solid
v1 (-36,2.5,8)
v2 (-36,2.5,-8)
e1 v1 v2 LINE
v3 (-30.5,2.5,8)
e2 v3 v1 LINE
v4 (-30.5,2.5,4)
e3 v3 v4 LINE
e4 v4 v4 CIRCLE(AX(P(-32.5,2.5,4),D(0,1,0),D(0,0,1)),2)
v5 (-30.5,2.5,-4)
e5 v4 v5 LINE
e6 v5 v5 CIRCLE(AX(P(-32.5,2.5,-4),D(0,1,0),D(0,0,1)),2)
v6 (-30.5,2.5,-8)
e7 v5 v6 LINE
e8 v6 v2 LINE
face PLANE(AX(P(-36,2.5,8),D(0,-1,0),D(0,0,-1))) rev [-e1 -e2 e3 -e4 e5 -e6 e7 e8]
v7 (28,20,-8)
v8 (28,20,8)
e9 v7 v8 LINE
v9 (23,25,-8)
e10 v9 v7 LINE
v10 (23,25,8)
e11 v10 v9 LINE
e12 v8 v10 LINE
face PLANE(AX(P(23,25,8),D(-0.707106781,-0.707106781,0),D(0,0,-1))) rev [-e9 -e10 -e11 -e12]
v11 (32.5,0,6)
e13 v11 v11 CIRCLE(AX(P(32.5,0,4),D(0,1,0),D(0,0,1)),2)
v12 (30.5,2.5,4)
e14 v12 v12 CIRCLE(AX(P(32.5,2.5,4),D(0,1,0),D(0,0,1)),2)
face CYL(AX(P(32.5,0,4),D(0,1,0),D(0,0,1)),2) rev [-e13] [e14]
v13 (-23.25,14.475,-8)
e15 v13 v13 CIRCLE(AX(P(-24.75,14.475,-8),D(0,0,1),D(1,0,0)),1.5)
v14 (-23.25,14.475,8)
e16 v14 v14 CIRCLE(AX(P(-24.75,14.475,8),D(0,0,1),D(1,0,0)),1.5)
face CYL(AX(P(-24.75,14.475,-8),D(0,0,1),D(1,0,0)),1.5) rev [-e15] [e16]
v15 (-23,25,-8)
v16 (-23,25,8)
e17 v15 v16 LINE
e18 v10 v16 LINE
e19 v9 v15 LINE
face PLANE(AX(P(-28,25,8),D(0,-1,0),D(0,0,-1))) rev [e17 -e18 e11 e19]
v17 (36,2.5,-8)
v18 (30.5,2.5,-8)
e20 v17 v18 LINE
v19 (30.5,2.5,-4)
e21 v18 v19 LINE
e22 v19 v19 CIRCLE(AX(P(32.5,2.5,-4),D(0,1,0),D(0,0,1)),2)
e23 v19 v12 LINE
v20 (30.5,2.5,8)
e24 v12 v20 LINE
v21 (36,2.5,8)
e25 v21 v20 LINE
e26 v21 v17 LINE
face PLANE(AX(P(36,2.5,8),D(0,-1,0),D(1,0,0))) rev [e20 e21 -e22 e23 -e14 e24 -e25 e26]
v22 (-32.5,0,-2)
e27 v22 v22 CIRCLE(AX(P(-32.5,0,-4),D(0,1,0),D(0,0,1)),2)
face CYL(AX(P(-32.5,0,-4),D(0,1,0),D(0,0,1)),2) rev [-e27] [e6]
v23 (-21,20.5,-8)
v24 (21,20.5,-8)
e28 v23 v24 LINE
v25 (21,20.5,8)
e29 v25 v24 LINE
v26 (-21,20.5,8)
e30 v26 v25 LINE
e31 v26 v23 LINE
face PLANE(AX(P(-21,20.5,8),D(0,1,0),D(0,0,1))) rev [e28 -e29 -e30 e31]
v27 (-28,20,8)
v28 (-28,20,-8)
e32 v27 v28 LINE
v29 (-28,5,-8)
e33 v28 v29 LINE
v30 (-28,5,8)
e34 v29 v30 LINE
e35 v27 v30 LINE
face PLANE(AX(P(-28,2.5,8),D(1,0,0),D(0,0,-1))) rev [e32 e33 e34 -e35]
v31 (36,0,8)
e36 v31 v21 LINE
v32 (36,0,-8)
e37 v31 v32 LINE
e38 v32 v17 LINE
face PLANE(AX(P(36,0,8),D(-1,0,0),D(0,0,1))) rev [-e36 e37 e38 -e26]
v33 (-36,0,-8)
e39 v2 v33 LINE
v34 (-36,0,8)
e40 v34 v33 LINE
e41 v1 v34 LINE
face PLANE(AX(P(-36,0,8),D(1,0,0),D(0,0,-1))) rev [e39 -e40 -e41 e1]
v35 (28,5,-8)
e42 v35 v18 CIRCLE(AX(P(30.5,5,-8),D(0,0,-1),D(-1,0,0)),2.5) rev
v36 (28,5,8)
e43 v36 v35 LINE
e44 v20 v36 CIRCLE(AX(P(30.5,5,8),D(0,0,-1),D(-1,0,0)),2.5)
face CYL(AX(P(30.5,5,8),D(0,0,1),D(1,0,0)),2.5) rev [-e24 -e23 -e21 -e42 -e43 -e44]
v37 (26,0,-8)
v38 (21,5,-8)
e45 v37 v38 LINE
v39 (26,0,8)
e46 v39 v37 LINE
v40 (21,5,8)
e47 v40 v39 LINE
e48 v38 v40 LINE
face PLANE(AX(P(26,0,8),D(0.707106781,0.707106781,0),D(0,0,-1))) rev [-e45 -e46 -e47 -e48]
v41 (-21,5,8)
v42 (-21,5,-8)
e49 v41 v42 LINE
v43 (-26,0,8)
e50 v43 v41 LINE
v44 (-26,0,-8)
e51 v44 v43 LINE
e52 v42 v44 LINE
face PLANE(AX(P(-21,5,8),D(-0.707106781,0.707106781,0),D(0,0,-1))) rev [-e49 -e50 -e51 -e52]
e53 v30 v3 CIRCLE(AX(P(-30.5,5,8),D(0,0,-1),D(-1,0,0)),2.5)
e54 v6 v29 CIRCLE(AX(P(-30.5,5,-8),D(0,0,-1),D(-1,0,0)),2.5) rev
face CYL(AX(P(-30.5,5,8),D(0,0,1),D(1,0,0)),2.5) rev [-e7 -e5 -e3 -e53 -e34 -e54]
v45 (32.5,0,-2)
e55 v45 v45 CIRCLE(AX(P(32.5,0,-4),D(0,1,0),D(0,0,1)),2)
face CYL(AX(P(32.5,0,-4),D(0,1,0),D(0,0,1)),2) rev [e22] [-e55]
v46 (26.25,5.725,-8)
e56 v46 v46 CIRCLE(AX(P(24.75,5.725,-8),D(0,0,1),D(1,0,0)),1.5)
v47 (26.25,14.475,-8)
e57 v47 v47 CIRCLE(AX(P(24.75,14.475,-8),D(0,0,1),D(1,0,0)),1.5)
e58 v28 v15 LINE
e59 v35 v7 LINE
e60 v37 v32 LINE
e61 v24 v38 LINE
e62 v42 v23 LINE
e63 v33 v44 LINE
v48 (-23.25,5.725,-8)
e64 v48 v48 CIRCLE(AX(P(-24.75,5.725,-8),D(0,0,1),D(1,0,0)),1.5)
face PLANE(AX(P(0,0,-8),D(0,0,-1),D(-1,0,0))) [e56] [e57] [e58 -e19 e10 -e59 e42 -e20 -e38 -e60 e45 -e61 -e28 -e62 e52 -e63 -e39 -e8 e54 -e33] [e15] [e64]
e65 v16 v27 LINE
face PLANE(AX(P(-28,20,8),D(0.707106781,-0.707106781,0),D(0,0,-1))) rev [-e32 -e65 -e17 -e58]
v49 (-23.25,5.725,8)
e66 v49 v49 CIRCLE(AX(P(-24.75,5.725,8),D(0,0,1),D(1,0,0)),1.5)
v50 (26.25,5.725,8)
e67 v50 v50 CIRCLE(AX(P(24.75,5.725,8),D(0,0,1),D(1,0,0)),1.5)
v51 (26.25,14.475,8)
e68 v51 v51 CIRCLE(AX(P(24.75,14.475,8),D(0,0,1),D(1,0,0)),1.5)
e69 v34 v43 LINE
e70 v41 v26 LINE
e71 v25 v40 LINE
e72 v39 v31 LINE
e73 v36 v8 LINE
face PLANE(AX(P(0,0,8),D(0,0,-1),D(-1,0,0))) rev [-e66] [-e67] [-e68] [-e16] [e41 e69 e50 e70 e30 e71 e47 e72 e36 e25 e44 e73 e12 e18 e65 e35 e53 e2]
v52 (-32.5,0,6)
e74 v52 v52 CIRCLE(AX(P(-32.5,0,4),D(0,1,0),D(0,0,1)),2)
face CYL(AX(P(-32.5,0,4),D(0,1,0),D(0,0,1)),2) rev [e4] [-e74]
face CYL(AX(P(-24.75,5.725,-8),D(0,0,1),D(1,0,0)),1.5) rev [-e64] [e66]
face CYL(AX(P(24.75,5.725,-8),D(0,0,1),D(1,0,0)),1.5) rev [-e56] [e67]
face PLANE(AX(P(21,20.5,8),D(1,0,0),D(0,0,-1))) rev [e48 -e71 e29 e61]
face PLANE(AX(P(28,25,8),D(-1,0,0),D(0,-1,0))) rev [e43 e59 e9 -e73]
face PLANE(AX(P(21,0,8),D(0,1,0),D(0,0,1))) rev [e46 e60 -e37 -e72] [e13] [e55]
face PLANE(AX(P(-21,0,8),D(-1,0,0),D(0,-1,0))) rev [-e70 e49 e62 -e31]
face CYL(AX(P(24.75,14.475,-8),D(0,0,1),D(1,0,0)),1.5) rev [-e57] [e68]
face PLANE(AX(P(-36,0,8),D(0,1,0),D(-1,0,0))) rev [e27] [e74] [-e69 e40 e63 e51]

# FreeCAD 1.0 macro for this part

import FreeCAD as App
import Part
import Sketcher


def edges_at(feature, points):
    """Names of the edges that pass closest to the given points."""
    edges = feature.Shape.Edges
    near = lambda p: min(range(len(edges)), key=lambda i: edges[i].distToShape(Part.Vertex(*p))[0])
    return sorted({f"Edge{near(p) + 1}" for p in points})

doc = App.newDocument("Part")
body = doc.addObject("PartDesign::Body", "Body")

sketch1 = doc.addObject("Sketcher::SketchObject", "Sketch")
body.addObject(sketch1)
sketch1.AttachmentSupport = (doc.XY_Plane, [""])
sketch1.MapMode = "FlatFace"
sketch1.addGeometry([
    Part.LineSegment(App.Vector(-36, 0, 0), App.Vector(-21, 0, 0)),
    Part.LineSegment(App.Vector(-21, 0, 0), App.Vector(-21, 20.5, 0)),
    Part.LineSegment(App.Vector(-21, 20.5, 0), App.Vector(21, 20.5, 0)),
    Part.LineSegment(App.Vector(21, 20.5, 0), App.Vector(21, 0, 0)),
    Part.LineSegment(App.Vector(21, 0, 0), App.Vector(36, 0, 0)),
    Part.LineSegment(App.Vector(36, 0, 0), App.Vector(36, 2.5, 0)),
    Part.LineSegment(App.Vector(36, 2.5, 0), App.Vector(28, 2.5, 0)),
    Part.LineSegment(App.Vector(28, 2.5, 0), App.Vector(28, 25, 0)),
    Part.LineSegment(App.Vector(28, 25, 0), App.Vector(-28, 25, 0)),
    Part.LineSegment(App.Vector(-28, 25, 0), App.Vector(-28, 2.5, 0)),
    Part.LineSegment(App.Vector(-28, 2.5, 0), App.Vector(-36, 2.5, 0)),
    Part.LineSegment(App.Vector(-36, 2.5, 0), App.Vector(-36, 0, 0)),
], False)
sketch1.addConstraint([
    Sketcher.Constraint("Coincident", 0, 2, 1, 1),
    Sketcher.Constraint("Coincident", 1, 2, 2, 1),
    Sketcher.Constraint("Coincident", 2, 2, 3, 1),
    Sketcher.Constraint("Coincident", 3, 2, 4, 1),
    Sketcher.Constraint("Coincident", 4, 2, 5, 1),
    Sketcher.Constraint("Coincident", 5, 2, 6, 1),
    Sketcher.Constraint("Coincident", 6, 2, 7, 1),
    Sketcher.Constraint("Coincident", 7, 2, 8, 1),
    Sketcher.Constraint("Coincident", 8, 2, 9, 1),
    Sketcher.Constraint("Coincident", 9, 2, 10, 1),
    Sketcher.Constraint("Coincident", 10, 2, 11, 1),
    Sketcher.Constraint("Coincident", 11, 2, 0, 1),
    Sketcher.Constraint("Horizontal", 0),
    Sketcher.Constraint("Vertical", 1),
    Sketcher.Constraint("Horizontal", 2),
    Sketcher.Constraint("Vertical", 3),
    Sketcher.Constraint("Horizontal", 4),
    Sketcher.Constraint("Vertical", 5),
    Sketcher.Constraint("Horizontal", 6),
    Sketcher.Constraint("Vertical", 7),
    Sketcher.Constraint("Horizontal", 8),
    Sketcher.Constraint("Vertical", 9),
    Sketcher.Constraint("Horizontal", 10),
    Sketcher.Constraint("Vertical", 11),
    Sketcher.Constraint("Symmetric", 0, 2, 3, 2, -1, 1),
    Sketcher.Constraint("Symmetric", 6, 2, 9, 2, -2),
    Sketcher.Constraint("Symmetric", 4, 2, 11, 2, -2),
    Sketcher.Constraint("DistanceX", 0, 1, 0, 2, 15.0),
    Sketcher.Constraint("DistanceX", 2, 1, 2, 2, 42.0),
    Sketcher.Constraint("DistanceX", 6, 2, 6, 1, 8.0),
    Sketcher.Constraint("DistanceY", 1, 1, 1, 2, 20.5),
    Sketcher.Constraint("DistanceY", 5, 1, 5, 2, 2.5),
    Sketcher.Constraint("DistanceY", 7, 1, 7, 2, 22.5),
])
pad1 = doc.addObject("PartDesign::Pad", "Pad")
body.addObject(pad1)
pad1.Profile = sketch1
pad1.Length = 16
pad1.Midplane = True
doc.recompute()

chamfer = doc.addObject("PartDesign::Chamfer", "Chamfer")
body.addObject(chamfer)
chamfer.Base = (pad1, edges_at(pad1, [
    (-28, 25, 0),
    (28, 25, 0),
    (21, 0, 0),
    (-21, 0, 0),
]))
chamfer.Size = 5
doc.recompute()

fillet = doc.addObject("PartDesign::Fillet", "Fillet")
body.addObject(fillet)
fillet.Base = (chamfer, edges_at(chamfer, [(-28, 2.5, 0), (28, 2.5, 0)]))
fillet.Radius = 2.5

sketch2 = doc.addObject("Sketcher::SketchObject", "Sketch001")
body.addObject(sketch2)
sketch2.AttachmentSupport = (doc.XY_Plane, [""])
sketch2.MapMode = "FlatFace"
sketch2.AttachmentOffset = App.Placement(App.Vector(0, 0, 8), App.Rotation())
sketch2.addGeometry([
    Part.Circle(App.Vector(-24.8, 14.5, 0), App.Vector(0, 0, 1), 1.5),
    Part.Circle(App.Vector(-24.8, 5.7, 0), App.Vector(0, 0, 1), 1.5),
    Part.Circle(App.Vector(24.8, 14.5, 0), App.Vector(0, 0, 1), 1.5),
    Part.Circle(App.Vector(24.8, 5.7, 0), App.Vector(0, 0, 1), 1.5),
], False)
sketch2.addConstraint([
    Sketcher.Constraint("Equal", 0, 1),
    Sketcher.Constraint("Equal", 1, 2),
    Sketcher.Constraint("Equal", 2, 3),
    Sketcher.Constraint("Symmetric", 0, 3, 2, 3, -2),
    Sketcher.Constraint("Symmetric", 1, 3, 3, 3, -2),
    Sketcher.Constraint("Vertical", 0, 3, 1, 3),
    Sketcher.Constraint("Diameter", 0, 3.0),
    Sketcher.Constraint("DistanceX", 0, 3, 2, 3, 49.5),
    Sketcher.Constraint("DistanceY", 1, 3, 0, 3, 8.75),
    Sketcher.Constraint("DistanceY", -1, 1, 0, 3, 14.475),
])
pocket1 = doc.addObject("PartDesign::Pocket", "Pocket")
body.addObject(pocket1)
pocket1.Profile = sketch2
pocket1.Type = "ThroughAll"

sketch3 = doc.addObject("Sketcher::SketchObject", "Sketch002")
body.addObject(sketch3)
sketch3.AttachmentSupport = (doc.XZ_Plane, [""])
sketch3.MapMode = "FlatFace"
sketch3.AttachmentOffset = App.Placement(App.Vector(0, 0, -2.5), App.Rotation())
sketch3.addGeometry([
    Part.Circle(App.Vector(32.5, -4, 0), App.Vector(0, 0, 1), 2),
    Part.Circle(App.Vector(32.5, 4, 0), App.Vector(0, 0, 1), 2),
    Part.Circle(App.Vector(-32.5, -4, 0), App.Vector(0, 0, 1), 2),
    Part.Circle(App.Vector(-32.5, 4, 0), App.Vector(0, 0, 1), 2),
], False)
sketch3.addConstraint([
    Sketcher.Constraint("Equal", 0, 1),
    Sketcher.Constraint("Equal", 1, 2),
    Sketcher.Constraint("Equal", 2, 3),
    Sketcher.Constraint("Symmetric", 1, 3, 2, 3, -1, 1),
    Sketcher.Constraint("Symmetric", 0, 3, 3, 3, -1, 1),
    Sketcher.Constraint("Symmetric", 0, 3, 2, 3, -2),
    Sketcher.Constraint("Diameter", 0, 4.0),
    Sketcher.Constraint("DistanceY", 0, 3, -1, 1, 4.0),
    Sketcher.Constraint("DistanceX", 2, 3, 0, 3, 65.0),
])
pocket2 = doc.addObject("PartDesign::Pocket", "Pocket001")
body.addObject(pocket2)
pocket2.Profile = sketch3
pocket2.Type = "ThroughAll"
pocket2.Reversed = True

doc.recompute()
